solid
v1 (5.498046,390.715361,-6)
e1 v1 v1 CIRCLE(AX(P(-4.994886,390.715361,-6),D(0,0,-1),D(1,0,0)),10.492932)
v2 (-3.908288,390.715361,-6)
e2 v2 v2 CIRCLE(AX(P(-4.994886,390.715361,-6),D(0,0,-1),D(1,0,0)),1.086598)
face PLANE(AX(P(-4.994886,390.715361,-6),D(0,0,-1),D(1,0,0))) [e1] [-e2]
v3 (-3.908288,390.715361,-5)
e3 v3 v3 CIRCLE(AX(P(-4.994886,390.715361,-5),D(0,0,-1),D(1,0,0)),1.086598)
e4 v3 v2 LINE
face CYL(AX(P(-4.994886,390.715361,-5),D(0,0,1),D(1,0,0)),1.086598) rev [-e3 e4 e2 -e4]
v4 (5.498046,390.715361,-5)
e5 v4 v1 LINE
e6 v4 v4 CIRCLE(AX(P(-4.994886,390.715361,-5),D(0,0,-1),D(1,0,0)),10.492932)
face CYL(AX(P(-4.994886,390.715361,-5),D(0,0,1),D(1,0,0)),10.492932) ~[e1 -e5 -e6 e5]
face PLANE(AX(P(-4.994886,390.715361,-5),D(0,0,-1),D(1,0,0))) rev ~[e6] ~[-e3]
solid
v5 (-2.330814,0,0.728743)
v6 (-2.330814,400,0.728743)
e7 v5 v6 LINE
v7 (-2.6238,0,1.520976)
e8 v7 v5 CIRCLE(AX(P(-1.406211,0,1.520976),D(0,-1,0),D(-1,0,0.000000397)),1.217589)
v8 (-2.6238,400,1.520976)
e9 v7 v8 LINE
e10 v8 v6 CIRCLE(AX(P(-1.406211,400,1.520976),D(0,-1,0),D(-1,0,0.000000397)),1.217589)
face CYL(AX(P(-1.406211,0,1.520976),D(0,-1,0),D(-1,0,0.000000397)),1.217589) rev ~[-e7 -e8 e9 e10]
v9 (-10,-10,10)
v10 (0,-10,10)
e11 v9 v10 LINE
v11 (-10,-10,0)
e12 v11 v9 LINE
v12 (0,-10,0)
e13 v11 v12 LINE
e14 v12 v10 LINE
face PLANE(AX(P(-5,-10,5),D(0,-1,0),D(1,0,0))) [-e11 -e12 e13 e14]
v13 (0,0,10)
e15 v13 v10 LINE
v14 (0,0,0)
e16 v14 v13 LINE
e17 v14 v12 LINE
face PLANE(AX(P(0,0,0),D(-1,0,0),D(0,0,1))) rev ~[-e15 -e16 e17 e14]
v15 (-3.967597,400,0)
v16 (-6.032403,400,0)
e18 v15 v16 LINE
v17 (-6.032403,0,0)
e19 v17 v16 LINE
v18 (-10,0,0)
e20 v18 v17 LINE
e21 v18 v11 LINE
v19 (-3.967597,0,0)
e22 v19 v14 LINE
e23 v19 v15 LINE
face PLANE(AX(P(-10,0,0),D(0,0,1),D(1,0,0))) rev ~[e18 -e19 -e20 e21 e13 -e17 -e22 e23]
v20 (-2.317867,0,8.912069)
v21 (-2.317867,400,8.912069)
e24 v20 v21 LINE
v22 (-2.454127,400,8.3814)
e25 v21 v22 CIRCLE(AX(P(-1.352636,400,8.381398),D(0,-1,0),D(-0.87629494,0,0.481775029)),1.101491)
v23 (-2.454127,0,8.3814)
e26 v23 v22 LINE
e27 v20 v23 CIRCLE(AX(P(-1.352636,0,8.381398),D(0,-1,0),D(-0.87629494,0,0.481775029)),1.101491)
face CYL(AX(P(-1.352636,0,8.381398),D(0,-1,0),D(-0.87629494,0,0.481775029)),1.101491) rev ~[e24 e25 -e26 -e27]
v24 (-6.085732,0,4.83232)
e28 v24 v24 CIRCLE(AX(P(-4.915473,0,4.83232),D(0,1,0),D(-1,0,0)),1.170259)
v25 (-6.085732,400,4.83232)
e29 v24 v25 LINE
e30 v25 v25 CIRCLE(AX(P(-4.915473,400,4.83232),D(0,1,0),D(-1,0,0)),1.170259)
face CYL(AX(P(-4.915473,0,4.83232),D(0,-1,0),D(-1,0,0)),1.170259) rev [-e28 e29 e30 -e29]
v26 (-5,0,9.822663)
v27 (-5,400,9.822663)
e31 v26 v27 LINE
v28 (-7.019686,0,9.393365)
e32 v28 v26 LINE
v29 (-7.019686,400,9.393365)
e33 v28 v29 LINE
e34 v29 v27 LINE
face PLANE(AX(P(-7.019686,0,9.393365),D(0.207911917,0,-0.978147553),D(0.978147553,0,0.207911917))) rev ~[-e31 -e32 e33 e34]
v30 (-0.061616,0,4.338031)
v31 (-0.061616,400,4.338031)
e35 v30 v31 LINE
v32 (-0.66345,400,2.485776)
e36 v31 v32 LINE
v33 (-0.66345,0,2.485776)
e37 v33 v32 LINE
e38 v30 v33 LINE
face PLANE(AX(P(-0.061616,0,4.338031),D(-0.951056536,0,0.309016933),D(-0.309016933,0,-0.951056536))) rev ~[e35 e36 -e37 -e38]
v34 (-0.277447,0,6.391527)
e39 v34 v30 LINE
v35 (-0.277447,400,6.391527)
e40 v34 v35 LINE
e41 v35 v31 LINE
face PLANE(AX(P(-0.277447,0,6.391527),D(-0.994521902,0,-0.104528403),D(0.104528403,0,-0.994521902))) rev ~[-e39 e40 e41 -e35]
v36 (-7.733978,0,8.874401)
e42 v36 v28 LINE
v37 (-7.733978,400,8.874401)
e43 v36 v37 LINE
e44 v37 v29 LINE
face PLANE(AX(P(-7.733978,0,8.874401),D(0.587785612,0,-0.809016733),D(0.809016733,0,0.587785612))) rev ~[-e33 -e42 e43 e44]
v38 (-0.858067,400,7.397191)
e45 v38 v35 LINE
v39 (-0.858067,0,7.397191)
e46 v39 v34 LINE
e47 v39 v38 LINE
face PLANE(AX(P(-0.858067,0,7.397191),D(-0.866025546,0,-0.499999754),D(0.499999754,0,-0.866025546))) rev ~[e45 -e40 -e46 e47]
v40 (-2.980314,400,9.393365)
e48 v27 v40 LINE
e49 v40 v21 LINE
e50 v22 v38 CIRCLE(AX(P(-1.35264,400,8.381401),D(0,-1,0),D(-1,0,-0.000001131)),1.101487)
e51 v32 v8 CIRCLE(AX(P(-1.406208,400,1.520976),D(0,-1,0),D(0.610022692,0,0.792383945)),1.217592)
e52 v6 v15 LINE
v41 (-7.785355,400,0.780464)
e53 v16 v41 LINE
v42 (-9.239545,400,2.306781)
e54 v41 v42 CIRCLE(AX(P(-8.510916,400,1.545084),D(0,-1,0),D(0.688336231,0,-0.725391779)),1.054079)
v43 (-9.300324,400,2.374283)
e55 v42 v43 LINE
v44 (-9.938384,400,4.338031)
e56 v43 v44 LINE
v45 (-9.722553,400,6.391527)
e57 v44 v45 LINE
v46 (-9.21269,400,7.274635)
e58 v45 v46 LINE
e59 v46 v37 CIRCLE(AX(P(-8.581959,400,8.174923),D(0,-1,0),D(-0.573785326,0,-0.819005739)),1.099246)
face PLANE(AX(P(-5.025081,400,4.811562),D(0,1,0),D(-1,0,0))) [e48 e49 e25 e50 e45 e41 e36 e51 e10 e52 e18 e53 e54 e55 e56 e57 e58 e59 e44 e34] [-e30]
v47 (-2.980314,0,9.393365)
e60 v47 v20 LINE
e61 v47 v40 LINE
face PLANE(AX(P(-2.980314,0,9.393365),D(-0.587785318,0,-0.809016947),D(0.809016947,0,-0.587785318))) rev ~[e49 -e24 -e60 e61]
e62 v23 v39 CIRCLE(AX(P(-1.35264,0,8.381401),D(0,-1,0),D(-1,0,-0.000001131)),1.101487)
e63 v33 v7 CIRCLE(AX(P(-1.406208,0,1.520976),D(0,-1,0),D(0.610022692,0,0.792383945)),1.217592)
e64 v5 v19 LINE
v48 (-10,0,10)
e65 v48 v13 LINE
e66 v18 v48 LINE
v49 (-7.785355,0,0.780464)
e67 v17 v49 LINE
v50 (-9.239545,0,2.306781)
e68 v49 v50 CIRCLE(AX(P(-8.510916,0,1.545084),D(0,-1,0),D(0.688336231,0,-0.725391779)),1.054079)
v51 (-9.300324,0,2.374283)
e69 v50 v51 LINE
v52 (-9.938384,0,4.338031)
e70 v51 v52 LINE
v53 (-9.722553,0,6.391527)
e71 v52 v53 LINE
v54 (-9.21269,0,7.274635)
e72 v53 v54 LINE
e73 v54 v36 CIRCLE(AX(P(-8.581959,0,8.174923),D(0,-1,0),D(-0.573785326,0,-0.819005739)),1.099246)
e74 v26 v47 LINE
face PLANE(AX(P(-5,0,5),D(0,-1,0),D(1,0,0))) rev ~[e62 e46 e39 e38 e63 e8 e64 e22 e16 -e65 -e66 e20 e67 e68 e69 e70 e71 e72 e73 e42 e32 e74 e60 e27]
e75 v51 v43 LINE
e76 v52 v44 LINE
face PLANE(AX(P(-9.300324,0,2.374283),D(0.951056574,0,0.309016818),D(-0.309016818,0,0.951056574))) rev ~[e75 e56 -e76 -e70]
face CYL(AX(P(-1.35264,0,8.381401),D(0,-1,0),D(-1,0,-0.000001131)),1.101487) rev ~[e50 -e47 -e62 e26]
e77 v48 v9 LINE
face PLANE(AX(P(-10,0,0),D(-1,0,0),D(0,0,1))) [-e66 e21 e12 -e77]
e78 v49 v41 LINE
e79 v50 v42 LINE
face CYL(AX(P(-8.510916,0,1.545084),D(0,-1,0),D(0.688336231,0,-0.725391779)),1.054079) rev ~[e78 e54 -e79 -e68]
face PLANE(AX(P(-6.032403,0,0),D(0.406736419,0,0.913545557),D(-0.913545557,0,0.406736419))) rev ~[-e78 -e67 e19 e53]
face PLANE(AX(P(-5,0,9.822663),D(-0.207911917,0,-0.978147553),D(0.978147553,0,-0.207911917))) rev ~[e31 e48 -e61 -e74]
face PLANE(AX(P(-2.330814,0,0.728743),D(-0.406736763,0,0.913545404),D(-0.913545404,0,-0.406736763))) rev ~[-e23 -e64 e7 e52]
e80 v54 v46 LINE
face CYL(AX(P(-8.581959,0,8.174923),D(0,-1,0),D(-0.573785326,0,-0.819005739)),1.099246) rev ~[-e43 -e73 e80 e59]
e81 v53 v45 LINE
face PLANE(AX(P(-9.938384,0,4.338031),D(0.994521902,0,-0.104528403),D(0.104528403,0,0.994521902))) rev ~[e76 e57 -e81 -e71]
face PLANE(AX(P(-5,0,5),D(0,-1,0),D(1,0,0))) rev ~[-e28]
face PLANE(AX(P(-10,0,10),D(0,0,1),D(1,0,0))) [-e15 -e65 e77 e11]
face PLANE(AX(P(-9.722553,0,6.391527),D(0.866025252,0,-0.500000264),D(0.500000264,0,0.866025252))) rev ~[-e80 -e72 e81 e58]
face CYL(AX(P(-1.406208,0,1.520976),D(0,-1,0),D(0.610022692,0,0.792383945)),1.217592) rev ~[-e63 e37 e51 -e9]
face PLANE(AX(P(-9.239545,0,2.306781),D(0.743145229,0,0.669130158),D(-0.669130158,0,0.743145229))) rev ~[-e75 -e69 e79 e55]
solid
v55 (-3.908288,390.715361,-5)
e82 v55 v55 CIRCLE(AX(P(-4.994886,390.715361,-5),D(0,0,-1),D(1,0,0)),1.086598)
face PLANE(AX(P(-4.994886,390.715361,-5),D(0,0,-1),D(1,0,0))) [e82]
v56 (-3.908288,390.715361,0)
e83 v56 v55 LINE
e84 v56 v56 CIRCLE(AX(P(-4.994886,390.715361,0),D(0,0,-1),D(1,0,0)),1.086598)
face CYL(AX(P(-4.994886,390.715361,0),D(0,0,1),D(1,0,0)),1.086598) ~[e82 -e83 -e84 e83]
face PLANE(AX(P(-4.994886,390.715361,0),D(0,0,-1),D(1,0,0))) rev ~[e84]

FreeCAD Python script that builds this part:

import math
import FreeCAD as App
import Part
import Sketcher
Q = App.Units.Quantity

doc = App.newDocument("Part")
body = doc.addObject("PartDesign::Body", "Body")

# Sketch on XZ plane
sketch1 = body.newObject("Sketcher::SketchObject", "Sketch")
sketch1.AttachmentSupport = (doc.getObject("XZ_Plane"), [""])
sketch1.MapMode = "FlatFace"
sketch1.addGeometry([
    Part.LineSegment(App.Vector(-10, 10, 0), App.Vector(-10, 0, 0)),
    Part.LineSegment(App.Vector(-10, 0, 0), App.Vector(0, 0, 0)),
    Part.LineSegment(App.Vector(0, 0, 0), App.Vector(0, 10, 0)),
    Part.LineSegment(App.Vector(0, 10, 0), App.Vector(-10, 10, 0)),
], False)
sketch1.addConstraint([
    Sketcher.Constraint("Coincident", 0, 2, 1, 1),
    Sketcher.Constraint("Coincident", 1, 2, 2, 1),
    Sketcher.Constraint("Coincident", 2, 2, 3, 1),
    Sketcher.Constraint("Coincident", 3, 2, 0, 1),
    Sketcher.Constraint("Vertical", 0),
    Sketcher.Constraint("Horizontal", 1),
    Sketcher.Constraint("Vertical", 2),
    Sketcher.Constraint("Horizontal", 3),
    Sketcher.Constraint("Coincident", 1, 2, -1, 1),
    Sketcher.Constraint("Equal", 3, 0),
    Sketcher.Constraint("DistanceX", 1, 1, 1, 2, Q("10 mm")),
])
pad1 = body.newObject("PartDesign::Pad", "Pad")
pad1.Profile = sketch1
pad1.Length = 10

# Sketch on XZ plane
sketch2 = body.newObject("Sketcher::SketchObject", "Sketch001")
sketch2.AttachmentSupport = (doc.getObject("XZ_Plane"), [""])
sketch2.MapMode = "FlatFace"
sketch2.addGeometry([
    Part.ArcOfCircle(Part.Circle(App.Vector(-8.58, 8.17, 0), App.Vector(0, 0, 1), 1.1), math.radians(-125), math.radians(40)),  # 0
    Part.LineSegment(App.Vector(-7.73, 8.87, 0), App.Vector(-7.02, 9.39, 0)),  # 1
    Part.LineSegment(App.Vector(-7.02, 9.39, 0), App.Vector(-5, 9.82, 0)),  # 2
    Part.LineSegment(App.Vector(-5, 9.82, 0), App.Vector(-2.98, 9.39, 0)),  # 3
    Part.LineSegment(App.Vector(-2.98, 9.39, 0), App.Vector(-2.32, 8.91, 0)),  # 4
    Part.ArcOfCircle(Part.Circle(App.Vector(-1.35, 8.38, 0), App.Vector(0, 0, 1), 1.1), math.radians(151), math.radians(180)),  # 5
    Part.ArcOfCircle(Part.Circle(App.Vector(-1.35, 8.38, 0), App.Vector(0, 0, 1), 1.1), math.radians(-180), math.radians(-63)),  # 6
    Part.LineSegment(App.Vector(-0.86, 7.4, 0), App.Vector(-0.28, 6.39, 0)),  # 7
    Part.LineSegment(App.Vector(-0.28, 6.39, 0), App.Vector(-0.06, 4.34, 0)),  # 8
    Part.LineSegment(App.Vector(-0.06, 4.34, 0), App.Vector(-0.66, 2.49, 0)),  # 9
    Part.ArcOfCircle(Part.Circle(App.Vector(-1.41, 1.52, 0), App.Vector(0, 0, 1), 1.22), math.radians(52), math.radians(180)),  # 10
    Part.ArcOfCircle(Part.Circle(App.Vector(-1.41, 1.52, 0), App.Vector(0, 0, 1), 1.22), math.radians(180), math.radians(221)),  # 11
    Part.LineSegment(App.Vector(-2.33, 0.73, 0), App.Vector(-3.97, 0, 0)),  # 12
    Part.LineSegment(App.Vector(-3.97, 0, 0), App.Vector(-6.03, 0, 0)),  # 13
    Part.LineSegment(App.Vector(-6.03, 0, 0), App.Vector(-7.79, 0.78, 0)),  # 14
    Part.ArcOfCircle(Part.Circle(App.Vector(-8.51, 1.55, 0), App.Vector(0, 0, 1), 1.05), math.radians(-47), math.radians(134)),  # 15
    Part.LineSegment(App.Vector(-9.24, 2.31, 0), App.Vector(-9.3, 2.37, 0)),  # 16
    Part.LineSegment(App.Vector(-9.3, 2.37, 0), App.Vector(-9.94, 4.34, 0)),  # 17
    Part.LineSegment(App.Vector(-9.94, 4.34, 0), App.Vector(-9.72, 6.39, 0)),  # 18
    Part.LineSegment(App.Vector(-9.72, 6.39, 0), App.Vector(-9.21, 7.27, 0)),  # 19
    Part.Circle(App.Vector(-4.92, 4.83, 0), App.Vector(0, 0, 1), 1.17),  # 20
], False)
sketch2.addConstraint([
    Sketcher.Constraint("Coincident", 0, 2, 1, 1),
    Sketcher.Constraint("Coincident", 1, 2, 2, 1),
    Sketcher.Constraint("Coincident", 2, 2, 3, 1),
    Sketcher.Constraint("Coincident", 3, 2, 4, 1),
    Sketcher.Constraint("Coincident", 4, 2, 5, 1),
    Sketcher.Constraint("Coincident", 5, 2, 6, 1),
    Sketcher.Constraint("Coincident", 6, 2, 7, 1),
    Sketcher.Constraint("Coincident", 7, 2, 8, 1),
    Sketcher.Constraint("Coincident", 8, 2, 9, 1),
    Sketcher.Constraint("Coincident", 9, 2, 10, 1),
    Sketcher.Constraint("Tangent", 10, 2, 11, 1),
    Sketcher.Constraint("Coincident", 11, 2, 12, 1),
    Sketcher.Constraint("Coincident", 12, 2, 13, 1),
    Sketcher.Constraint("Coincident", 13, 2, 14, 1),
    Sketcher.Constraint("Coincident", 14, 2, 15, 1),
    Sketcher.Constraint("Coincident", 15, 2, 16, 1),
    Sketcher.Constraint("Coincident", 16, 2, 17, 1),
    Sketcher.Constraint("Coincident", 17, 2, 18, 1),
    Sketcher.Constraint("Coincident", 18, 2, 19, 1),
    Sketcher.Constraint("Coincident", 19, 2, 0, 1),
    Sketcher.Constraint("Horizontal", 13),
    Sketcher.Constraint("Coincident", 6, 3, 5, 3),
    Sketcher.Constraint("PointOnObject", 12, 2, -1),
    Sketcher.Constraint("Horizontal", 1, 2, 3, 2),
    Sketcher.Constraint("Horizontal", 6, 3, 5, 2),
    Sketcher.Constraint("Horizontal", 11, 3, 10, 2),
    Sketcher.Constraint("Horizontal", 8, 2, 17, 2),
    Sketcher.Constraint("Horizontal", 7, 2, 18, 2),
    Sketcher.Constraint("Equal", 2, 3),
    Sketcher.Constraint("Equal", 3, 8),
    Sketcher.Constraint("Equal", 8, 17),
    Sketcher.Constraint("Equal", 17, 18),
    Sketcher.Constraint("Angle", 2, Q("12.000013 deg")),
    Sketcher.Constraint("Angle", 4, Q("-36.000005 deg")),
    Sketcher.Constraint("Angle", 7, Q("-60.000016 deg")),
    Sketcher.Constraint("Angle", 8, Q("-84.000003 deg")),
    Sketcher.Constraint("Angle", 9, Q("-107.999996 deg")),
    Sketcher.Constraint("Angle", 12, Q("-155.999992 deg")),
    Sketcher.Constraint("Angle", 14, Q("156.000014 deg")),
    Sketcher.Constraint("Angle", 17, Q("107.999989 deg")),
    Sketcher.Constraint("Angle", 19, Q("59.999983 deg")),
    Sketcher.Constraint("DistanceX", 2, 2, -1, 1, Q("5 mm")),
    Sketcher.Constraint("Radius", 5, Q("1.101491 mm")),
    Sketcher.Constraint("Radius", 10, Q("1.217592 mm")),
    Sketcher.Constraint("Radius", 11, Q("1.217589 mm")),
    Sketcher.Constraint("Radius", 15, Q("1.054079 mm")),
    Sketcher.Constraint("Diameter", 20, Q("2.340518 mm")),
    Sketcher.Constraint("Radius", 0, Q("1.099246 mm")),
    Sketcher.Constraint("DistanceY", 6, 3, 0, 2, Q("0.493 mm")),
    Sketcher.Constraint("DistanceY", -1, 1, 5, 3, Q("8.381398 mm")),
    Sketcher.Constraint("DistanceX", 10, 2, -1, 1, Q("2.6238 mm")),
    Sketcher.Constraint("DistanceY", 1, 2, 2, 2, Q("0.429298 mm")),
    Sketcher.Constraint("DistanceX", 4, 2, 6, 2, Q("1.4598 mm")),
    Sketcher.Constraint("DistanceY", 10, 3, 9, 2, Q("0.9648 mm")),
    Sketcher.Constraint("DistanceY", 15, 2, 16, 2, Q("0.067502 mm")),
    Sketcher.Constraint("DistanceY", 15, 3, 16, 2, Q("0.829199 mm")),
    Sketcher.Constraint("Distance", 4, Q("0.81883 mm")),
    Sketcher.Constraint("Distance", 7, Q("1.161241 mm")),
    Sketcher.Constraint("DistanceX", 13, 2, 13, 1, Q("2.064806 mm")),
    Sketcher.Constraint("DistanceX", 0, 3, -1, 1, Q("8.581959 mm")),
    Sketcher.Constraint("DistanceX", 6, 3, -1, 1, Q("1.35264 mm")),
    Sketcher.Constraint("DistanceY", -1, 1, 20, 3, Q("4.83232 mm")),
    Sketcher.Constraint("DistanceX", 0, 2, -1, 1, Q("7.733978 mm")),
    Sketcher.Constraint("DistanceX", 19, 2, -1, 1, Q("9.21269 mm")),
    Sketcher.Constraint("DistanceX", 15, 3, 5, 3, Q("7.15828 mm")),
    Sketcher.Constraint("DistanceX", 12, 2, 10, 3, Q("2.561389 mm")),
    Sketcher.Constraint("DistanceX", 14, 2, 20, 3, Q("2.869882 mm")),
])
pad2 = body.newObject("PartDesign::Pad", "Pad001")
pad2.Profile = sketch2
pad2.Length = 400
pad2.Reversed = True
body2 = doc.addObject("PartDesign::Body", "Body001")

# Sketch on XY plane
sketch3 = body2.newObject("Sketcher::SketchObject", "Sketch002")
sketch3.AttachmentSupport = (doc.getObject("XY_Plane001"), [""])
sketch3.MapMode = "FlatFace"
sketch3.addGeometry(Part.Circle(App.Vector(-5, 390.7, 0), App.Vector(0, 0, 1), 1.1), False)
sketch3.addConstraint([
    Sketcher.Constraint("Diameter", 0, Q("2.173196 mm")),
    Sketcher.Constraint("DistanceY", -1, 1, 0, 3, Q("390.715361 mm")),
    Sketcher.Constraint("DistanceX", 0, 3, -1, 1, Q("4.994886 mm")),
])
pad3 = body2.newObject("PartDesign::Pad", "Pad002")
pad3.Profile = sketch3
pad3.Length = 5
pad3.Reversed = True
body3 = doc.addObject("PartDesign::Body", "Body002")

# Sketch on XY plane
sketch4 = body3.newObject("Sketcher::SketchObject", "Sketch003")
sketch4.AttachmentSupport = (doc.getObject("XY_Plane002"), [""])
sketch4.MapMode = "FlatFace"
sketch4.AttachmentOffset = App.Placement(App.Vector(0, 0, -5), App.Rotation())
sketch4.addGeometry([
    Part.Circle(App.Vector(-5, 390.7, 0), App.Vector(0, 0, 1), 10.5),
    Part.Circle(App.Vector(-5, 390.7, 0), App.Vector(0, 0, 1), 1.1),
], False)
sketch4.addConstraint([
    Sketcher.Constraint("Coincident", 1, 3, 0, 3),
    Sketcher.Constraint("Diameter", 0, Q("20.985864 mm")),
    Sketcher.Constraint("Diameter", 1, Q("2.173196 mm")),
    Sketcher.Constraint("DistanceY", -1, 1, 0, 3, Q("390.715361 mm")),
    Sketcher.Constraint("DistanceX", 0, 3, -1, 1, Q("4.994886 mm")),
])
pad4 = body3.newObject("PartDesign::Pad", "Pad003")
pad4.Profile = sketch4
pad4.Length = 1
pad4.Reversed = True

doc.recompute()
